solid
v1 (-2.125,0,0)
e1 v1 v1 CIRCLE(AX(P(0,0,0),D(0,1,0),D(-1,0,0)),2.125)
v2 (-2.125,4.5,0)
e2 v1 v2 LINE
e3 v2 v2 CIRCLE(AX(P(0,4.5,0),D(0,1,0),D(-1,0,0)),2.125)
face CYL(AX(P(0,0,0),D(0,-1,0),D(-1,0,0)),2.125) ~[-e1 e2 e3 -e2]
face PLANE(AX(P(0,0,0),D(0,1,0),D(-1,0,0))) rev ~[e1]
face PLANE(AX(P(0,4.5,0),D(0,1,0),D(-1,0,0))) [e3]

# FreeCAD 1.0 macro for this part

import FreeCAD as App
import Part
import Sketcher
from FreeCAD import Vector

doc = App.newDocument("Part")
body = doc.addObject("PartDesign::Body", "Body")

# Sketch on XZ plane
sketch1 = body.newObject("Sketcher::SketchObject", "Sketch")
sketch1.AttachmentSupport = (doc.getObject("XZ_Plane"), [""])
sketch1.MapMode = "FlatFace"
sketch1.addGeometry(Part.Circle(Vector(0, 0, 0), Vector(0, 0, 1), 2.1), False)
sketch1.addConstraint([
    Sketcher.Constraint("Coincident", 0, 3, -1, 1),
    Sketcher.Constraint("Diameter", 0, 4.25),
])
pad1 = body.newObject("PartDesign::Pad", "Pad")
pad1.Profile = sketch1
pad1.Length = 4.5
pad1.Reversed = True

doc.recompute()
